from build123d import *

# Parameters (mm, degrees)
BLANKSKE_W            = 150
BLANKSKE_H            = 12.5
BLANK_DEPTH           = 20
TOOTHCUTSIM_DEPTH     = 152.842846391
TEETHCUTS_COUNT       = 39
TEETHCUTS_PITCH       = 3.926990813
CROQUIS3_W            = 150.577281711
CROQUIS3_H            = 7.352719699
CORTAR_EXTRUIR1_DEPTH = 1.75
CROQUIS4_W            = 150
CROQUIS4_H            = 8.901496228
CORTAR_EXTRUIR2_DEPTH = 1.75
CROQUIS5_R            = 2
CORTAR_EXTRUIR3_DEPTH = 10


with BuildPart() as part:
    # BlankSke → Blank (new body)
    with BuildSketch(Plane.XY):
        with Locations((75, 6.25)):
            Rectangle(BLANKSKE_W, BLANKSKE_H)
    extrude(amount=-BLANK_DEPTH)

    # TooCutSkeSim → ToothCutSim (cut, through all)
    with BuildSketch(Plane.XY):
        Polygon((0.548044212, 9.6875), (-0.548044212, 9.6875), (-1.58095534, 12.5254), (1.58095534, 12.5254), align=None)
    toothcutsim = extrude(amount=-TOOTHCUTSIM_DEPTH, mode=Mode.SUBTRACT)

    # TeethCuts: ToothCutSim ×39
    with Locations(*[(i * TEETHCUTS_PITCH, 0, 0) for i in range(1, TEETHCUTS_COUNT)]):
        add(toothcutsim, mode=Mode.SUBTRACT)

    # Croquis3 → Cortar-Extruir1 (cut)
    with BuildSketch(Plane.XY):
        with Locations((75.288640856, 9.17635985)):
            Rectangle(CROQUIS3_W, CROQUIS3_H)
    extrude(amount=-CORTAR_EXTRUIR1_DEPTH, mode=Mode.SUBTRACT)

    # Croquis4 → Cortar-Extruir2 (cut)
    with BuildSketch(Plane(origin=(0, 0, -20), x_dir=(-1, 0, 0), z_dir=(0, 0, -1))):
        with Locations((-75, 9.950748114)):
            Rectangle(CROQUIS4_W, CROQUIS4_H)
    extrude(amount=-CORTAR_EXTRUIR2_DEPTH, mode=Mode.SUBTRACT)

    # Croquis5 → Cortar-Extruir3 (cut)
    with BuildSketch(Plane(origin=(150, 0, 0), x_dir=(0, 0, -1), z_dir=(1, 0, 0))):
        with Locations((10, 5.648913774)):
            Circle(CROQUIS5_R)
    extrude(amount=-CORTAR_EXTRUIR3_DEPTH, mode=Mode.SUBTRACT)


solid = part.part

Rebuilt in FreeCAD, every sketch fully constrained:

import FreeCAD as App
import Part
import Sketcher

V = App.Vector
Q = App.Units.Quantity


def add_polygon(sketch, points):
    """Adds a closed chain of lines whose ends are joined by coincident constraints."""
    first, n = sketch.GeometryCount, len(points)
    for a, b in zip(points, points[1:] + points[:1]):
        sketch.addGeometry(Part.LineSegment(App.Vector(*a, 0), App.Vector(*b, 0)), False)
    for i in range(n):
        sketch.addConstraint(Sketcher.Constraint("Coincident", first + i, 2, first + (i + 1) % n, 1))

doc = App.newDocument("Part")
body = doc.addObject("PartDesign::Body", "Body")

sketch1 = body.newObject("Sketcher::SketchObject", "Sketch")
sketch1.AttachmentSupport = (doc.getObject("XY_Plane"), [""])
sketch1.MapMode = "FlatFace"
add_polygon(sketch1, [(0, 12), (0, 0), (150, 0), (150, 12)])
sketch1.addConstraint([
    Sketcher.Constraint("Vertical", 0),
    Sketcher.Constraint("Horizontal", 1),
    Sketcher.Constraint("Vertical", 2),
    Sketcher.Constraint("Horizontal", 3),
    Sketcher.Constraint("Coincident", 0, 2, -1, 1),
    Sketcher.Constraint("DistanceX", 1, 1, 1, 2, 150.0),
    Sketcher.Constraint("DistanceY", 0, 2, 0, 1, 12.5),
])
pad1 = body.newObject("PartDesign::Pad", "Pad")
pad1.Profile = sketch1
pad1.Length = 20
pad1.Reversed = True

sketch2 = body.newObject("Sketcher::SketchObject", "Sketch001")
sketch2.AttachmentSupport = (doc.getObject("XY_Plane"), [""])
sketch2.MapMode = "FlatFace"
add_polygon(sketch2, [(-0.5, 9.7), (0.5, 9.7), (1.6, 12.5), (-1.6, 12.5)])
sketch2.addConstraint([
    Sketcher.Constraint("Horizontal", 0),
    Sketcher.Constraint("Horizontal", 2),
    Sketcher.Constraint("Equal", 1, 3),
    Sketcher.Constraint("Angle", 1, Q("70 deg")),
    Sketcher.Constraint("DistanceX", 2, 2, 0, 2, 2.129),
    Sketcher.Constraint("DistanceX", 0, 1, 0, 2, 1.096088),
    Sketcher.Constraint("DistanceY", -1, 1, 0, 2, 9.6875),
    Sketcher.Constraint("DistanceX", -1, 1, 0, 2, 0.548044),
])
pocket1 = body.newObject("PartDesign::Pocket", "Pocket")
pocket1.Profile = sketch2
pocket1.Type = "ThroughAll"
doc.recompute()

linearpattern = body.newObject("PartDesign::LinearPattern", "LinearPattern")
linearpattern.Originals = [pocket1]
linearpattern.Direction = (doc.getObject("X_Axis"), [""])
linearpattern.Mode = "offset"
linearpattern.Offset = 3.926991
linearpattern.Occurrences = 39
body.Tip = linearpattern

sketch3 = body.newObject("Sketcher::SketchObject", "Sketch002")
sketch3.AttachmentSupport = (doc.getObject("XY_Plane"), [""])
sketch3.MapMode = "FlatFace"
add_polygon(sketch3, [(0, 13), (0, 6), (151, 6), (151, 13)])
sketch3.addConstraint([
    Sketcher.Constraint("Vertical", 0),
    Sketcher.Constraint("Horizontal", 1),
    Sketcher.Constraint("Vertical", 2),
    Sketcher.Constraint("Horizontal", 3),
    Sketcher.Constraint("PointOnObject", 0, 2, -2),
    Sketcher.Constraint("DistanceY", -1, 1, 0, 2, 5.5),
    Sketcher.Constraint("DistanceX", 1, 1, 1, 2, 150.577282),
    Sketcher.Constraint("DistanceY", 0, 2, 0, 1, 7.35272),
])
pocket2 = body.newObject("PartDesign::Pocket", "Pocket001")
pocket2.Profile = sketch3
pocket2.Length = 1.75

sketch4 = body.newObject("Sketcher::SketchObject", "Sketch003")
sketch4.AttachmentSupport = (doc.getObject("XY_Plane"), [""])
sketch4.MapMode = "FlatFace"
sketch4.AttachmentOffset = App.Placement(V(0, 0, -20), App.Rotation())
add_polygon(sketch4, [(150, 14), (150, 6), (0, 6), (0, 14)])
sketch4.addConstraint([
    Sketcher.Constraint("Vertical", 0),
    Sketcher.Constraint("Horizontal", 1),
    Sketcher.Constraint("Vertical", 2),
    Sketcher.Constraint("Horizontal", 3),
    Sketcher.Constraint("PointOnObject", 1, 2, -2),
    Sketcher.Constraint("DistanceX", 1, 2, 1, 1, 150.0),
    Sketcher.Constraint("DistanceY", -1, 1, 0, 2, 5.5),
    Sketcher.Constraint("DistanceY", 0, 2, 0, 1, 8.901496),
])
pocket3 = body.newObject("PartDesign::Pocket", "Pocket002")
pocket3.Profile = sketch4
pocket3.Length = 1.75
pocket3.Reversed = True

sketch5 = body.newObject("Sketcher::SketchObject", "Sketch004")
sketch5.AttachmentSupport = (doc.getObject("YZ_Plane"), [""])
sketch5.MapMode = "FlatFace"
sketch5.AttachmentOffset = App.Placement(V(0, 0, 150), App.Rotation())
sketch5.addGeometry(Part.Circle(V(5.6, -10, 0), V(0, 0, 1), 2), False)
sketch5.addConstraint([
    Sketcher.Constraint("Diameter", 0, 4.0),
    Sketcher.Constraint("DistanceY", 0, 3, -1, 1, 10.0),
    Sketcher.Constraint("DistanceX", -1, 1, 0, 3, 5.648914),
])
pocket4 = body.newObject("PartDesign::Pocket", "Pocket003")
pocket4.Profile = sketch5
pocket4.Length = 10

doc.recompute()
